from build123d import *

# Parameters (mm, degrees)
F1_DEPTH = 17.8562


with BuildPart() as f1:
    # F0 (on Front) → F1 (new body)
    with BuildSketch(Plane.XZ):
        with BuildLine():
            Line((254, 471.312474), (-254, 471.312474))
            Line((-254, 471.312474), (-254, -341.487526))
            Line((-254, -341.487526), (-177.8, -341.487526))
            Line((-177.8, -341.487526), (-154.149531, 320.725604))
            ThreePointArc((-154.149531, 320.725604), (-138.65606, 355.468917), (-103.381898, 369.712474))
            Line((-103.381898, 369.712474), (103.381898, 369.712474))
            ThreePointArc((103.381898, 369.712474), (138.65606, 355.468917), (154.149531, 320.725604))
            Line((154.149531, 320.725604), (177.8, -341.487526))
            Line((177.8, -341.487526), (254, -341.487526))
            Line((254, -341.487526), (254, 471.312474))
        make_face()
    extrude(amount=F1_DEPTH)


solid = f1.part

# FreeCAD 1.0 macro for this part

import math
import FreeCAD as App
import Part
import Sketcher
Q = App.Units.Quantity

doc = App.newDocument("Part")
body = doc.addObject("PartDesign::Body", "Body")

# Sketch on XZ plane
sketch1 = doc.addObject("Sketcher::SketchObject", "Sketch")
body.addObject(sketch1)
sketch1.AttachmentSupport = (doc.XZ_Plane, [""])
sketch1.MapMode = "FlatFace"
sketch1.addGeometry(Part.LineSegment(App.Vector(254, 471.312474, 0), App.Vector(-254, 471.312474, 0)), False)
sketch1.addGeometry(Part.LineSegment(App.Vector(-254, 471.312474, 0), App.Vector(-254, -341.487526, 0)), False)
sketch1.addGeometry(Part.LineSegment(App.Vector(-254, -341.487526, 0), App.Vector(-177.8, -341.487526, 0)), False)
sketch1.addGeometry(Part.LineSegment(App.Vector(-177.8, -341.487526, 0), App.Vector(-154.149531, 320.725604, 0)), False)
sketch1.addGeometry(Part.ArcOfCircle(Part.Circle(App.Vector(-103.381899, 318.912475, 0), App.Vector(0, 0, 1), 50.799999), math.radians(89.999999), math.radians(177.954592)), False)
sketch1.addGeometry(Part.LineSegment(App.Vector(-103.381898, 369.712474, 0), App.Vector(103.381898, 369.712474, 0)), False)
sketch1.addGeometry(Part.ArcOfCircle(Part.Circle(App.Vector(103.381899, 318.912475, 0), App.Vector(0, 0, 1), 50.799999), math.radians(2.045408), math.radians(90.000001)), False)
sketch1.addGeometry(Part.LineSegment(App.Vector(154.149531, 320.725604, 0), App.Vector(177.8, -341.487526, 0)), False)
sketch1.addGeometry(Part.LineSegment(App.Vector(177.8, -341.487526, 0), App.Vector(254, -341.487526, 0)), False)
sketch1.addGeometry(Part.LineSegment(App.Vector(254, -341.487526, 0), App.Vector(254, 471.312474, 0)), False)
sketch1.addConstraint(Sketcher.Constraint("Coincident", 0, 2, 1, 1))
sketch1.addConstraint(Sketcher.Constraint("Coincident", 1, 2, 2, 1))
sketch1.addConstraint(Sketcher.Constraint("Coincident", 2, 2, 3, 1))
sketch1.addConstraint(Sketcher.Constraint("Tangent", 3, 2, 4, 2))
sketch1.addConstraint(Sketcher.Constraint("Tangent", 4, 1, 5, 1))
sketch1.addConstraint(Sketcher.Constraint("Tangent", 5, 2, 6, 2))
sketch1.addConstraint(Sketcher.Constraint("Tangent", 6, 1, 7, 1))
sketch1.addConstraint(Sketcher.Constraint("Coincident", 7, 2, 8, 1))
sketch1.addConstraint(Sketcher.Constraint("Coincident", 8, 2, 9, 1))
sketch1.addConstraint(Sketcher.Constraint("Coincident", 9, 2, 0, 1))
sketch1.addConstraint(Sketcher.Constraint("Horizontal", 0))
sketch1.addConstraint(Sketcher.Constraint("Vertical", 1))
sketch1.addConstraint(Sketcher.Constraint("Horizontal", 2))
sketch1.addConstraint(Sketcher.Constraint("Horizontal", 5))
sketch1.addConstraint(Sketcher.Constraint("Horizontal", 8))
sketch1.addConstraint(Sketcher.Constraint("Vertical", 9))
sketch1.addConstraint(Sketcher.Constraint("Equal", 4, 6))
sketch1.addConstraint(Sketcher.Constraint("Symmetric", 2, 2, 7, 2, -2))
sketch1.addConstraint(Sketcher.Constraint("Equal", 2, 8))
sketch1.addConstraint(Sketcher.Constraint("Equal", 3, 7))
sketch1.addConstraint(Sketcher.Constraint("Radius", 4, Q("2 in")))
sketch1.addConstraint(Sketcher.Constraint("DistanceX", 0, 2, 0, 1, Q("20 in")))
sketch1.addConstraint(Sketcher.Constraint("DistanceX", 2, 1, 2, 2, Q("3 in")))
sketch1.addConstraint(Sketcher.Constraint("DistanceY", 1, 2, 1, 1, Q("32 in")))
sketch1.addConstraint(Sketcher.Constraint("DistanceY", 4, 3, 0, 2, Q("6 in")))
sketch1.addConstraint(Sketcher.Constraint("DistanceX", 4, 3, -1, 1, 103.381899))
sketch1.addConstraint(Sketcher.Constraint("DistanceY", -1, 1, 4, 3, 318.912475))
pad1 = doc.addObject("PartDesign::Pad", "Pad")
body.addObject(pad1)
pad1.Profile = sketch1
pad1.Length = Q("0.703 in")

doc.recompute()
